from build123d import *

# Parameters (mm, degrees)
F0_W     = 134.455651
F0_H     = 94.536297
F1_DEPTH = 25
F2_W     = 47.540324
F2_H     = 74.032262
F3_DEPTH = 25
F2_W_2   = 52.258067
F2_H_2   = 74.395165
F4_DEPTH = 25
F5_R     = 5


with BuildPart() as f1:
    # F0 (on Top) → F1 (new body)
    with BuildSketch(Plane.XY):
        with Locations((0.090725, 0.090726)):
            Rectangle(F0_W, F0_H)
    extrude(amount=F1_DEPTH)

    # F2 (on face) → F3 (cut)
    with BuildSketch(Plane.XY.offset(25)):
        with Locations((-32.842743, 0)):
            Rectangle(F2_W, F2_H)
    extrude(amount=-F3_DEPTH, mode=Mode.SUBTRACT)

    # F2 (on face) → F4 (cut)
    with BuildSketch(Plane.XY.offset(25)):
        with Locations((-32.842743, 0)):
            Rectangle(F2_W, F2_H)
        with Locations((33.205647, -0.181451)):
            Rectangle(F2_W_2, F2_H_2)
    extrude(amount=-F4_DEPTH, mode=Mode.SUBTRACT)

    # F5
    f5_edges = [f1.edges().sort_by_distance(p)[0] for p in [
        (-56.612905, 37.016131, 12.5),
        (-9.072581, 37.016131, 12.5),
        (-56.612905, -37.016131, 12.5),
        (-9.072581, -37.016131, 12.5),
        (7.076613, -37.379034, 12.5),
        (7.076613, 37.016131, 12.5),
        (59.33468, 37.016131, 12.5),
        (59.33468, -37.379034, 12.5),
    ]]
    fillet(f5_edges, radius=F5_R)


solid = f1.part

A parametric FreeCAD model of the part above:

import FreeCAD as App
import Part
import Sketcher
from FreeCAD import Vector


def edges_at(feature, points):
    """Names of the edges that pass closest to the given points."""
    edges = feature.Shape.Edges
    near = lambda p: min(range(len(edges)), key=lambda i: edges[i].distToShape(Part.Vertex(*p))[0])
    return sorted({f"Edge{near(p) + 1}" for p in points})

doc = App.newDocument("Part")
body = doc.addObject("PartDesign::Body", "Body")

sketch1 = doc.addObject("Sketcher::SketchObject", "Sketch")
body.addObject(sketch1)
sketch1.AttachmentSupport = (doc.XY_Plane, [""])
sketch1.MapMode = "FlatFace"
sketch1.addGeometry([
    Part.LineSegment(Vector(-67.137101, 47.358874, 0), Vector(-67.137101, -47.177422, 0)),
    Part.LineSegment(Vector(-67.137101, -47.177422, 0), Vector(67.318551, -47.177422, 0)),
    Part.LineSegment(Vector(67.318551, -47.177422, 0), Vector(67.318551, 47.358874, 0)),
    Part.LineSegment(Vector(67.318551, 47.358874, 0), Vector(-67.137101, 47.358874, 0)),
], False)
sketch1.addConstraint([
    Sketcher.Constraint("Coincident", 0, 2, 1, 1),
    Sketcher.Constraint("Coincident", 1, 2, 2, 1),
    Sketcher.Constraint("Coincident", 2, 2, 3, 1),
    Sketcher.Constraint("Coincident", 3, 2, 0, 1),
    Sketcher.Constraint("Vertical", 0),
    Sketcher.Constraint("Horizontal", 1),
    Sketcher.Constraint("Vertical", 2),
    Sketcher.Constraint("Horizontal", 3),
    Sketcher.Constraint("DistanceX", 1, 1, 1, 2, 134.455651),
    Sketcher.Constraint("DistanceX", 0, 2, -1, 1, 67.137101),
    Sketcher.Constraint("DistanceY", 0, 2, 0, 1, 94.536297),
    Sketcher.Constraint("DistanceY", 0, 2, -1, 1, 47.177422),
])
pad1 = doc.addObject("PartDesign::Pad", "Pad")
body.addObject(pad1)
pad1.Profile = sketch1
pad1.Length = 25

sketch2 = doc.addObject("Sketcher::SketchObject", "Sketch001")
body.addObject(sketch2)
sketch2.AttachmentSupport = (doc.XY_Plane, [""])
sketch2.MapMode = "FlatFace"
sketch2.AttachmentOffset = App.Placement(Vector(0, 0, 25), App.Rotation())
sketch2.addGeometry([
    Part.LineSegment(Vector(-56.612905, 37.016131, 0), Vector(-56.612905, -37.016131, 0)),
    Part.LineSegment(Vector(-56.612905, -37.016131, 0), Vector(-9.072581, -37.016131, 0)),
    Part.LineSegment(Vector(-9.072581, -37.016131, 0), Vector(-9.072581, 37.016131, 0)),
    Part.LineSegment(Vector(-9.072581, 37.016131, 0), Vector(-56.612905, 37.016131, 0)),
], False)
sketch2.addConstraint([
    Sketcher.Constraint("Coincident", 0, 2, 1, 1),
    Sketcher.Constraint("Coincident", 1, 2, 2, 1),
    Sketcher.Constraint("Coincident", 2, 2, 3, 1),
    Sketcher.Constraint("Coincident", 3, 2, 0, 1),
    Sketcher.Constraint("Vertical", 0),
    Sketcher.Constraint("Horizontal", 1),
    Sketcher.Constraint("Vertical", 2),
    Sketcher.Constraint("Horizontal", 3),
    Sketcher.Constraint("DistanceX", 1, 1, 1, 2, 47.540324),
    Sketcher.Constraint("DistanceY", 0, 2, 0, 1, 74.032262),
    Sketcher.Constraint("DistanceY", 0, 2, -1, 1, 37.016131),
    Sketcher.Constraint("DistanceX", 1, 2, -1, 1, 9.072581),
])
pocket1 = doc.addObject("PartDesign::Pocket", "Pocket")
body.addObject(pocket1)
pocket1.Profile = sketch2
pocket1.Length = 25

sketch3 = doc.addObject("Sketcher::SketchObject", "Sketch002")
body.addObject(sketch3)
sketch3.AttachmentSupport = (doc.XY_Plane, [""])
sketch3.MapMode = "FlatFace"
sketch3.AttachmentOffset = App.Placement(Vector(0, 0, 25), App.Rotation())
sketch3.addGeometry([
    Part.LineSegment(Vector(-56.612905, 37.016131, 0), Vector(-56.612905, -37.016131, 0)),
    Part.LineSegment(Vector(-56.612905, -37.016131, 0), Vector(-9.072581, -37.016131, 0)),
    Part.LineSegment(Vector(-9.072581, -37.016131, 0), Vector(-9.072581, 37.016131, 0)),
    Part.LineSegment(Vector(-9.072581, 37.016131, 0), Vector(-56.612905, 37.016131, 0)),
    Part.LineSegment(Vector(7.076613, 37.016132, 0), Vector(7.076613, -37.379033, 0)),
    Part.LineSegment(Vector(7.076613, -37.379033, 0), Vector(59.33468, -37.379033, 0)),
    Part.LineSegment(Vector(59.33468, -37.379033, 0), Vector(59.33468, 37.016132, 0)),
    Part.LineSegment(Vector(59.33468, 37.016132, 0), Vector(7.076613, 37.016132, 0)),
], False)
sketch3.addConstraint([
    Sketcher.Constraint("Coincident", 0, 2, 1, 1),
    Sketcher.Constraint("Coincident", 1, 2, 2, 1),
    Sketcher.Constraint("Coincident", 2, 2, 3, 1),
    Sketcher.Constraint("Coincident", 3, 2, 0, 1),
    Sketcher.Constraint("Coincident", 4, 2, 5, 1),
    Sketcher.Constraint("Coincident", 5, 2, 6, 1),
    Sketcher.Constraint("Coincident", 6, 2, 7, 1),
    Sketcher.Constraint("Coincident", 7, 2, 4, 1),
    Sketcher.Constraint("Vertical", 0),
    Sketcher.Constraint("Horizontal", 1),
    Sketcher.Constraint("Vertical", 2),
    Sketcher.Constraint("Horizontal", 3),
    Sketcher.Constraint("Vertical", 4),
    Sketcher.Constraint("Horizontal", 5),
    Sketcher.Constraint("Vertical", 6),
    Sketcher.Constraint("Horizontal", 7),
    Sketcher.Constraint("Horizontal", 3, 2, 6, 2),
    Sketcher.Constraint("DistanceX", 1, 1, 1, 2, 47.540324),
    Sketcher.Constraint("DistanceX", 5, 1, 5, 2, 52.258067),
    Sketcher.Constraint("DistanceY", 0, 2, 0, 1, 74.032262),
    Sketcher.Constraint("DistanceY", 4, 2, 4, 1, 74.395165),
    Sketcher.Constraint("DistanceY", 0, 2, -1, 1, 37.016131),
    Sketcher.Constraint("DistanceX", 1, 2, -1, 1, 9.072581),
    Sketcher.Constraint("DistanceX", -1, 1, 5, 2, 59.33468),
])
pocket2 = doc.addObject("PartDesign::Pocket", "Pocket001")
body.addObject(pocket2)
pocket2.Profile = sketch3
pocket2.Length = 25
doc.recompute()

fillet = doc.addObject("PartDesign::Fillet", "Fillet")
body.addObject(fillet)
fillet.Base = (pocket2, edges_at(pocket2, [
    (-56.613, 37.016, 12.5),
    (-9.073, 37.016, 12.5),
    (-56.613, -37.016, 12.5),
    (-9.073, -37.016, 12.5),
    (7.077, -37.379, 12.5),
    (7.077, 37.016, 12.5),
    (59.335, 37.016, 12.5),
    (59.335, -37.379, 12.5),
]))
fillet.Radius = 5

doc.recompute()
